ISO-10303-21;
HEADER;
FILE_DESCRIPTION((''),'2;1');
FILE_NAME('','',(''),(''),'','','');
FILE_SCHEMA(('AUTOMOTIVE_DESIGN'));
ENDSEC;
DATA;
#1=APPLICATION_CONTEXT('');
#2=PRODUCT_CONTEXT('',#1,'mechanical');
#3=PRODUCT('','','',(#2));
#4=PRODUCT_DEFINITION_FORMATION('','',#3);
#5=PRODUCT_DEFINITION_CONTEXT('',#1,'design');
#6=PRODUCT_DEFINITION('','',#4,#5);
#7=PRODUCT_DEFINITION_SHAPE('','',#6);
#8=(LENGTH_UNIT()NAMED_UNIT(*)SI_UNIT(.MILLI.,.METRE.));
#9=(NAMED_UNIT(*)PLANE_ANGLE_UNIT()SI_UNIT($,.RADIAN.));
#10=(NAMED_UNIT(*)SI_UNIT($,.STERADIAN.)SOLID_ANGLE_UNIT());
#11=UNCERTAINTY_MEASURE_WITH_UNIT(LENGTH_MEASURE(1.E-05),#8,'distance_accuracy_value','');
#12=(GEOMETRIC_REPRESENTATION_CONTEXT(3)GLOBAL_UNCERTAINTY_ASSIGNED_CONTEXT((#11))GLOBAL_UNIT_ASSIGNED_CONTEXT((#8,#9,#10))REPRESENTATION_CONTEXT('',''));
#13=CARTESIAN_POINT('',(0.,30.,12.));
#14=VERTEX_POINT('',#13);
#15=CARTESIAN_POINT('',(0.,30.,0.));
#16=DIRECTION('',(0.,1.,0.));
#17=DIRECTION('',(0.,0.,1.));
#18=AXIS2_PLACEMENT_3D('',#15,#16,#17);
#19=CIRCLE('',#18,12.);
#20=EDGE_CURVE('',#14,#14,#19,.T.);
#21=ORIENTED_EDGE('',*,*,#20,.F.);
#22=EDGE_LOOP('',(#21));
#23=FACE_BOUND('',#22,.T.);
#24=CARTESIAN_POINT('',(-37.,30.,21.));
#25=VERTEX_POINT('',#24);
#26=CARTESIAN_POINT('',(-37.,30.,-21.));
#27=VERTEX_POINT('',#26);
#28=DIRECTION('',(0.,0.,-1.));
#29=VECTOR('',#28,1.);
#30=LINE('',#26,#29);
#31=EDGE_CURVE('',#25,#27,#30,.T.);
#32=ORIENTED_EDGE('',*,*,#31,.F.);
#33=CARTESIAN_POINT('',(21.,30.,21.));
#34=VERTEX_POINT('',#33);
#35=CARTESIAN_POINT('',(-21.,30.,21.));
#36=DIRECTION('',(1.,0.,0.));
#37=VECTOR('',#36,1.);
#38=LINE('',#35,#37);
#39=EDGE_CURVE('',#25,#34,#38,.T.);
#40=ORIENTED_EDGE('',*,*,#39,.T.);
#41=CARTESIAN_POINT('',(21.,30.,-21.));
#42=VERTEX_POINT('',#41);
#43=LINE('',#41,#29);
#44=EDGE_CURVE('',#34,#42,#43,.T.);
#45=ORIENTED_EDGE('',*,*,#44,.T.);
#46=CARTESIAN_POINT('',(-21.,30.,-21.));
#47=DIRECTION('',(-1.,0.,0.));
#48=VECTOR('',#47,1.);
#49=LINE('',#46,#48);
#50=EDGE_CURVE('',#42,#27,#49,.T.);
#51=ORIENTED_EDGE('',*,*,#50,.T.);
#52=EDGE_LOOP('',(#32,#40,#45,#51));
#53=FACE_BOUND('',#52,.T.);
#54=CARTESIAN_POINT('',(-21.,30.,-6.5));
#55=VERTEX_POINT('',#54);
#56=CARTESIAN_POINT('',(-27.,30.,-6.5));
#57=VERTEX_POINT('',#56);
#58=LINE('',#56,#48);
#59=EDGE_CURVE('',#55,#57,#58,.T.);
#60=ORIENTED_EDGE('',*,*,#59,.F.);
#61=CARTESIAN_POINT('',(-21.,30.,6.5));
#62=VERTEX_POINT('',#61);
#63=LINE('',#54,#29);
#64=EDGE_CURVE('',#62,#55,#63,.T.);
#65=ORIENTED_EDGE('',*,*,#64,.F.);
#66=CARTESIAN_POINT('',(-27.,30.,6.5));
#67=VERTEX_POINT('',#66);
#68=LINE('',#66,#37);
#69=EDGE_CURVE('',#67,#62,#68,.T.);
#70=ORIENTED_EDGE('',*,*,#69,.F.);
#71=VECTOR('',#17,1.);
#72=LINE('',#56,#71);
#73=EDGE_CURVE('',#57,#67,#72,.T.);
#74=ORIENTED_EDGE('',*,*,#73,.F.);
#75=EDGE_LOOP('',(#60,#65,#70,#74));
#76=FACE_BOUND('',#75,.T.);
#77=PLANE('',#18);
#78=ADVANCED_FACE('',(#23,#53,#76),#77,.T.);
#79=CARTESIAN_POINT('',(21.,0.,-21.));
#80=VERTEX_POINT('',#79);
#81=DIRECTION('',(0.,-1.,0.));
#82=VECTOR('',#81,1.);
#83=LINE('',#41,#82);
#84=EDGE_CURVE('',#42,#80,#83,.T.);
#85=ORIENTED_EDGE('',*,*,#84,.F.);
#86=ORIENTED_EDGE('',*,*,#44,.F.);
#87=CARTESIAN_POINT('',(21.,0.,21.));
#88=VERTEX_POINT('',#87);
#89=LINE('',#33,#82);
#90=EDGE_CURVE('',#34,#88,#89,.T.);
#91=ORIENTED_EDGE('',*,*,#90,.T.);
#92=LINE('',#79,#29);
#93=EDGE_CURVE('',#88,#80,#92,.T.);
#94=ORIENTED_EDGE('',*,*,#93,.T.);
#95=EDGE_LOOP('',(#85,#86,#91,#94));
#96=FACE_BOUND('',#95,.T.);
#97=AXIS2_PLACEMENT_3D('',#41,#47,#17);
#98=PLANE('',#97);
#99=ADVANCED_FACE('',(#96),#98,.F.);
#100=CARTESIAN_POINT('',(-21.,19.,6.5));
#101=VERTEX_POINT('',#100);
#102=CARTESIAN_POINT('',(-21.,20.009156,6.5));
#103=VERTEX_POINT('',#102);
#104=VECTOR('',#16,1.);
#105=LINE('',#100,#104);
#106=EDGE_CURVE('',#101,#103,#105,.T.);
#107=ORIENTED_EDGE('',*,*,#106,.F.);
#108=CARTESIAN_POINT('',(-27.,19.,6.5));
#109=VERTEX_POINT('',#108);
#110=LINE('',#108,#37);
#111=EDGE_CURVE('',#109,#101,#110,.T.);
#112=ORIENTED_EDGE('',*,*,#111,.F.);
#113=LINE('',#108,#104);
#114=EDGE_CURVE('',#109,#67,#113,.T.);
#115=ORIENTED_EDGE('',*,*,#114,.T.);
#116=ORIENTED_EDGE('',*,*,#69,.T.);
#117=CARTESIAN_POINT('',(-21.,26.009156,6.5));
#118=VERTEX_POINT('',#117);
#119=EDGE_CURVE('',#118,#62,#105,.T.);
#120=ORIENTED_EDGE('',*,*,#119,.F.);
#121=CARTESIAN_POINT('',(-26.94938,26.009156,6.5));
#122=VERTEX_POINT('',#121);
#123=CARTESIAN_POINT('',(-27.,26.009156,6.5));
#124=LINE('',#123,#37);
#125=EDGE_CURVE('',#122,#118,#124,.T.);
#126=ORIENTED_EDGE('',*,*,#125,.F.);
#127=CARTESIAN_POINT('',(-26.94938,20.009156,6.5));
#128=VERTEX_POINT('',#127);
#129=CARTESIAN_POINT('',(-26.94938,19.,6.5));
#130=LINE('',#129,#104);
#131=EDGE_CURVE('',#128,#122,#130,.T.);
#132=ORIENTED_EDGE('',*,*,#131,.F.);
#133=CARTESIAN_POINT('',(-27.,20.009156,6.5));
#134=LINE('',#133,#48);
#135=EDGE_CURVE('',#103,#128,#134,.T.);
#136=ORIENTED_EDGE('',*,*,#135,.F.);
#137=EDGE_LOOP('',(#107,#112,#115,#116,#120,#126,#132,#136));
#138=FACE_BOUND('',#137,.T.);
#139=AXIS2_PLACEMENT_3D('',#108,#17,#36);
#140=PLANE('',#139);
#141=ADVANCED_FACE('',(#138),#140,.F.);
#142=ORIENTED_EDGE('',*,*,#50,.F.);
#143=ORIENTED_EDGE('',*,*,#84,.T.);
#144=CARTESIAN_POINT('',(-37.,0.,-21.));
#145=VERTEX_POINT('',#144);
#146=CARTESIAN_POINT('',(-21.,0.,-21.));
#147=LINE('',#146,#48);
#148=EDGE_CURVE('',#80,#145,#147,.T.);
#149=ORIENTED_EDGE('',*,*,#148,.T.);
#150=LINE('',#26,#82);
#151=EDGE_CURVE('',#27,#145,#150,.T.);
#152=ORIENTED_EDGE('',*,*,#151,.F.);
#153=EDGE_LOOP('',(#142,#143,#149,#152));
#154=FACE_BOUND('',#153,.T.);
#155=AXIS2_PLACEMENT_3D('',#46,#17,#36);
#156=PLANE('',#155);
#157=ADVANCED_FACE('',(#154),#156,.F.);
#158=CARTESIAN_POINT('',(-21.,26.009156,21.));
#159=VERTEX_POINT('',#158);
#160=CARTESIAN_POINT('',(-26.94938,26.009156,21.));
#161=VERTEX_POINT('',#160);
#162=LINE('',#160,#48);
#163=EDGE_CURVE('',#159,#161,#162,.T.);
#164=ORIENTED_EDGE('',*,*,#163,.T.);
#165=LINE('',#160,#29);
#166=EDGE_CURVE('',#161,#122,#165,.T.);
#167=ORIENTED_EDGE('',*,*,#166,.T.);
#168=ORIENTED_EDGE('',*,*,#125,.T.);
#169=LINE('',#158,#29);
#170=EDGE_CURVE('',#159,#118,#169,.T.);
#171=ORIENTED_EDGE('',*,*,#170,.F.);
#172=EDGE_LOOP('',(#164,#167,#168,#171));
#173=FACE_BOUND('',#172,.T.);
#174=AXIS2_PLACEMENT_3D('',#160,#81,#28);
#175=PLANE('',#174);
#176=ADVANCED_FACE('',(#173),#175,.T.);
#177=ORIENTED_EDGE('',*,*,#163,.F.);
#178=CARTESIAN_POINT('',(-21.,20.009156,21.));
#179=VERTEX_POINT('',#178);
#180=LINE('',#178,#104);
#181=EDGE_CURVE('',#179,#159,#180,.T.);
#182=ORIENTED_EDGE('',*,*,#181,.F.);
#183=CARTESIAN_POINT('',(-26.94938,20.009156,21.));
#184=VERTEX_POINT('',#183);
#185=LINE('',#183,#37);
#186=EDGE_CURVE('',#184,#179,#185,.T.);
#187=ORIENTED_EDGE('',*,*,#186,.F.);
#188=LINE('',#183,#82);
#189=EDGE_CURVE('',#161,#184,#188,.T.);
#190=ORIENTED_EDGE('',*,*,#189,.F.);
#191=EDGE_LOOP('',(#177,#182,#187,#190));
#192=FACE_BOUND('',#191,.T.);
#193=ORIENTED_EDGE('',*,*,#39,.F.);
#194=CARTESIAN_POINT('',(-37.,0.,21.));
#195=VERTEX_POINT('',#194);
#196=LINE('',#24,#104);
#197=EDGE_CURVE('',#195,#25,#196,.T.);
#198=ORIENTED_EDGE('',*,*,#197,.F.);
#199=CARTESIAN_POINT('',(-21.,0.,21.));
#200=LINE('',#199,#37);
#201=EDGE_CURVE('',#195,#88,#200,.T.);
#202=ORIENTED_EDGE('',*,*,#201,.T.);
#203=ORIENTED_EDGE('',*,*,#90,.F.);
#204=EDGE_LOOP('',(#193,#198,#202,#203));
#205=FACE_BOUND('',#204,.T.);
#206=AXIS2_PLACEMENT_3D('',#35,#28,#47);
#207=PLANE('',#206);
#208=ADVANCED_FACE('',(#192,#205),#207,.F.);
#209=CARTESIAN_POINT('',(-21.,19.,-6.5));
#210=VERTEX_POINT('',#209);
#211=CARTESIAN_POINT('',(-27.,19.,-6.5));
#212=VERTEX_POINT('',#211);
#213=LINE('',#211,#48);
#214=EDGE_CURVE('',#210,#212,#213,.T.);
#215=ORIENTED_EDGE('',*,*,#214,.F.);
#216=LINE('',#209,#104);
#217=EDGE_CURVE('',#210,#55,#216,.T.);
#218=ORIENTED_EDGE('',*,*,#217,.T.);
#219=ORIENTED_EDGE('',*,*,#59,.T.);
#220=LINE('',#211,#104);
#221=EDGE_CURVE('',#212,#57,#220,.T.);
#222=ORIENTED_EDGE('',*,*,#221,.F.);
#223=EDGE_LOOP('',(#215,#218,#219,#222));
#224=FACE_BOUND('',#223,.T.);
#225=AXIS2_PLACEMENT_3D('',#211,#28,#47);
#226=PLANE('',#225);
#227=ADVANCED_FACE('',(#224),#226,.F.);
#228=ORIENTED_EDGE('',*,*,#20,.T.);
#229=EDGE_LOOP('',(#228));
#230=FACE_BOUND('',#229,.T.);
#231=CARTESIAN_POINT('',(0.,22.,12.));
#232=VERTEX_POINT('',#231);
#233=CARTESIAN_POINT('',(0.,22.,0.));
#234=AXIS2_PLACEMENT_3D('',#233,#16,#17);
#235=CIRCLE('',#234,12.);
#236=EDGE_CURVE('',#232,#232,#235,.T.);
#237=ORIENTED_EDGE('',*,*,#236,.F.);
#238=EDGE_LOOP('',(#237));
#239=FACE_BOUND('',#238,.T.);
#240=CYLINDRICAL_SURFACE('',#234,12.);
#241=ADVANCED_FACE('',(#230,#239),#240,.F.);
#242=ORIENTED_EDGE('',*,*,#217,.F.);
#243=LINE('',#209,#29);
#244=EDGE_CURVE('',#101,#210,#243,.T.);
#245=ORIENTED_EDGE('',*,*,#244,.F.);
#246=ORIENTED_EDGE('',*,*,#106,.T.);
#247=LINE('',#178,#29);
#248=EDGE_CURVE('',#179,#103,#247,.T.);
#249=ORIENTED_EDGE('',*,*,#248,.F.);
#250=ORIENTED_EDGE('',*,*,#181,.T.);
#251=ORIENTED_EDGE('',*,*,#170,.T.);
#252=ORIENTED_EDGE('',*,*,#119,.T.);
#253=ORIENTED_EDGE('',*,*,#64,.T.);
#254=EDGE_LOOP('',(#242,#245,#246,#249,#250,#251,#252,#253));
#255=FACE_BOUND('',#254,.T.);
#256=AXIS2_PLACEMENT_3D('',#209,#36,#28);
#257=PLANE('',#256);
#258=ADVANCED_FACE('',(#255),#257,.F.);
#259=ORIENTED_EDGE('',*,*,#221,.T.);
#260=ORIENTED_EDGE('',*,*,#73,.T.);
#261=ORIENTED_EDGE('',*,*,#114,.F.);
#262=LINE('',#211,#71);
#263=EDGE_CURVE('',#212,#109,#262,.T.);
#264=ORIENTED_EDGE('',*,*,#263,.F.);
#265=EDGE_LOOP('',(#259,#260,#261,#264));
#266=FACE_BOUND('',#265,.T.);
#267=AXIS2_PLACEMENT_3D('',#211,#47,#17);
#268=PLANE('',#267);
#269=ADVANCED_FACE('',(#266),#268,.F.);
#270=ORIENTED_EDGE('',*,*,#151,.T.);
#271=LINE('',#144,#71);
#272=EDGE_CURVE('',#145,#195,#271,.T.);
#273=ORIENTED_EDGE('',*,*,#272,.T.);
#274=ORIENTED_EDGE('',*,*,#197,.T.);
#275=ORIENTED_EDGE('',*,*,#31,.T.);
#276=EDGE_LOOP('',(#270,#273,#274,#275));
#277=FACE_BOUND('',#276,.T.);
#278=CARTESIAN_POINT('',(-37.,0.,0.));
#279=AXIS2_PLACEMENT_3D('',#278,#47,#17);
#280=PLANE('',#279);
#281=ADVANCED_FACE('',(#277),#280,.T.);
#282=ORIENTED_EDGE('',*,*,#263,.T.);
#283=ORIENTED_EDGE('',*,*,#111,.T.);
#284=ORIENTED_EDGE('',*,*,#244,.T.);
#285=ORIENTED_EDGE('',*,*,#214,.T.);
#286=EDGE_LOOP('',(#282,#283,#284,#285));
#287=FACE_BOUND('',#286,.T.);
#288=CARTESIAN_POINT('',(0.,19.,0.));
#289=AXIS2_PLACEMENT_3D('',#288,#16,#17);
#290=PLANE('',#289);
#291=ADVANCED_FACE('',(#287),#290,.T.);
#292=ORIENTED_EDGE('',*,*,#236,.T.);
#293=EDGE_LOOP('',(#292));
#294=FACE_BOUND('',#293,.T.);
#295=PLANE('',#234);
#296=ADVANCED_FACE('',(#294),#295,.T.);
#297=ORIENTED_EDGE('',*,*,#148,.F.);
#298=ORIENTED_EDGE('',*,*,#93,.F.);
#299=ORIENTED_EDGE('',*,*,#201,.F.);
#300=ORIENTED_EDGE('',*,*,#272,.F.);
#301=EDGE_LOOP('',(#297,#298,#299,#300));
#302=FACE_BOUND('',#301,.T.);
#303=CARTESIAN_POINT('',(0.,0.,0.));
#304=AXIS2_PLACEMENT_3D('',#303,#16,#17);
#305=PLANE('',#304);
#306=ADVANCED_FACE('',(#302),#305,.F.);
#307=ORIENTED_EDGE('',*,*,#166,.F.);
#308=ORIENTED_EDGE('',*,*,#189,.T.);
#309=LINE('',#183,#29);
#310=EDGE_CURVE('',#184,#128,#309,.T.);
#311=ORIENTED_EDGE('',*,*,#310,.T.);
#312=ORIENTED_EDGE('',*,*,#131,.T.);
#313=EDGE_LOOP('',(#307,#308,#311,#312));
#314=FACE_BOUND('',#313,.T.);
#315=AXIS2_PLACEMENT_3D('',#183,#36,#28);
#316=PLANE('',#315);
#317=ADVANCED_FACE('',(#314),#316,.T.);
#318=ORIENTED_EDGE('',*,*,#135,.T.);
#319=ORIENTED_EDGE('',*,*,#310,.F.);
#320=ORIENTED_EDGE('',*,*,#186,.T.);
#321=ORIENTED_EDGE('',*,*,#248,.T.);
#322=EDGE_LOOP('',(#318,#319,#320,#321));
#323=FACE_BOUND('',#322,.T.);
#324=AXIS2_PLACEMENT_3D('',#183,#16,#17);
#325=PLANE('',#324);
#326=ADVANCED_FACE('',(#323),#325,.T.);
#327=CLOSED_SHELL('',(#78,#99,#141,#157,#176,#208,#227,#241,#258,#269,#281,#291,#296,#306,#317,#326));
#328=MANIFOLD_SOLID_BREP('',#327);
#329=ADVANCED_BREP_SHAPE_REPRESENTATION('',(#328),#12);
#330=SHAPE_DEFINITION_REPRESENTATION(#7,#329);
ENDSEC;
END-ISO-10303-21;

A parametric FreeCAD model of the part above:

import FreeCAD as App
import Part
import Sketcher

V = App.Vector
Q = App.Units.Quantity


def add_polygon(sketch, points):
    """Adds a closed chain of lines whose ends are joined by coincident constraints."""
    first, n = sketch.GeometryCount, len(points)
    for a, b in zip(points, points[1:] + points[:1]):
        sketch.addGeometry(Part.LineSegment(App.Vector(*a, 0), App.Vector(*b, 0)), False)
    for i in range(n):
        sketch.addConstraint(Sketcher.Constraint("Coincident", first + i, 2, first + (i + 1) % n, 1))

doc = App.newDocument("Part")
body = doc.addObject("PartDesign::Body", "Body")

# Sketch on XZ plane
sketch1 = body.newObject("Sketcher::SketchObject", "Sketch")
sketch1.AttachmentSupport = (doc.getObject("XZ_Plane"), [""])
sketch1.MapMode = "FlatFace"
add_polygon(sketch1, [(-21, -21), (-21, 21), (21, 21), (21, -21)])  # lines 0-3
sketch1.addConstraint(Sketcher.Constraint("Vertical", 0))
sketch1.addConstraint(Sketcher.Constraint("Horizontal", 1))
sketch1.addConstraint(Sketcher.Constraint("Vertical", 2))
sketch1.addConstraint(Sketcher.Constraint("Horizontal", 3))
sketch1.addConstraint(Sketcher.Constraint("Symmetric", 0, 2, 2, 2, -1, 1))
sketch1.addConstraint(Sketcher.Constraint("Equal", 3, 0))
sketch1.addConstraint(Sketcher.Constraint("DistanceX", 1, 1, 1, 2, Q("42 mm")))
pad1 = body.newObject("PartDesign::Pad", "Pad")
pad1.Profile = sketch1
pad1.Length = 30
pad1.Reversed = True

# Sketch on XZ plane
sketch2 = body.newObject("Sketcher::SketchObject", "Sketch001")
sketch2.AttachmentSupport = (doc.getObject("XZ_Plane"), [""])
sketch2.MapMode = "FlatFace"
sketch2.AttachmentOffset = App.Placement(V(0, 0, -30), App.Rotation())
sketch2.addGeometry(Part.Circle(V(0, 0, 0), V(0, 0, 1), 12), False)
sketch2.addConstraint(Sketcher.Constraint("Coincident", 0, 3, -1, 1))
sketch2.addConstraint(Sketcher.Constraint("Diameter", 0, Q("24 mm")))
pocket1 = body.newObject("PartDesign::Pocket", "Pocket")
pocket1.Profile = sketch2
pocket1.Length = 8
pocket1.Reversed = True

# Sketch on YZ plane
sketch3 = body.newObject("Sketcher::SketchObject", "Sketch002")
sketch3.AttachmentSupport = (doc.getObject("YZ_Plane"), [""])
sketch3.MapMode = "FlatFace"
sketch3.AttachmentOffset = App.Placement(V(0, 0, -21), App.Rotation())
add_polygon(sketch3, [(30, -21), (0, -21), (0, 21), (30, 21)])  # lines 0-3
sketch3.addConstraint(Sketcher.Constraint("Horizontal", 0))
sketch3.addConstraint(Sketcher.Constraint("Vertical", 1))
sketch3.addConstraint(Sketcher.Constraint("Horizontal", 2))
sketch3.addConstraint(Sketcher.Constraint("Vertical", 3))
sketch3.addConstraint(Sketcher.Constraint("Symmetric", 0, 2, 1, 2, -1, 1))
sketch3.addConstraint(Sketcher.Constraint("DistanceX", 0, 2, 0, 1, Q("30 mm")))
sketch3.addConstraint(Sketcher.Constraint("DistanceY", 1, 1, 1, 2, Q("42 mm")))
pad2 = body.newObject("PartDesign::Pad", "Pad001")
pad2.Profile = sketch3
pad2.Length = 16
pad2.Reversed = True

# Sketch on XZ plane
sketch4 = body.newObject("Sketcher::SketchObject", "Sketch003")
sketch4.AttachmentSupport = (doc.getObject("XZ_Plane"), [""])
sketch4.MapMode = "FlatFace"
sketch4.AttachmentOffset = App.Placement(V(0, 0, -30), App.Rotation())
add_polygon(sketch4, [(-27, -6.5), (-27, 6.5), (-21, 6.5), (-21, -6.5)])  # lines 0-3
sketch4.addConstraint(Sketcher.Constraint("Vertical", 0))
sketch4.addConstraint(Sketcher.Constraint("Horizontal", 1))
sketch4.addConstraint(Sketcher.Constraint("Vertical", 2))
sketch4.addConstraint(Sketcher.Constraint("Horizontal", 3))
sketch4.addConstraint(Sketcher.Constraint("DistanceX", 1, 1, 1, 2, Q("6 mm")))
sketch4.addConstraint(Sketcher.Constraint("DistanceY", 0, 1, 0, 2, Q("13 mm")))
sketch4.addConstraint(Sketcher.Constraint("DistanceX", 0, 2, -1, 1, Q("27 mm")))
sketch4.addConstraint(Sketcher.Constraint("DistanceY", -1, 1, 0, 2, Q("6.5 mm")))
pocket2 = body.newObject("PartDesign::Pocket", "Pocket001")
pocket2.Profile = sketch4
pocket2.Length = 11
pocket2.Reversed = True

# Sketch on XY plane
sketch5 = body.newObject("Sketcher::SketchObject", "Sketch004")
sketch5.AttachmentSupport = (doc.getObject("XY_Plane"), [""])
sketch5.MapMode = "FlatFace"
sketch5.AttachmentOffset = App.Placement(V(0, 0, -6.5), App.Rotation())
add_polygon(sketch5, [(-26.94938, 26.009156), (-26.94938, 20.009156), (-21, 20.009156), (-21, 26.009156)])  # lines 0-3
sketch5.addConstraint(Sketcher.Constraint("Vertical", 0))
sketch5.addConstraint(Sketcher.Constraint("Horizontal", 1))
sketch5.addConstraint(Sketcher.Constraint("Vertical", 2))
sketch5.addConstraint(Sketcher.Constraint("Horizontal", 3))
sketch5.addConstraint(Sketcher.Constraint("DistanceY", 0, 2, 0, 1, Q("6 mm")))
sketch5.addConstraint(Sketcher.Constraint("DistanceX", 1, 2, -1, 1, Q("21 mm")))
sketch5.addConstraint(Sketcher.Constraint("DistanceX", 1, 1, 1, 2, Q("5.94938 mm")))
sketch5.addConstraint(Sketcher.Constraint("DistanceY", -1, 1, 0, 2, Q("20.009156 mm")))
pocket3 = body.newObject("PartDesign::Pocket", "Pocket002")
pocket3.Profile = sketch5
pocket3.Type = "ThroughAll"
pocket3.Reversed = True

doc.recompute()
